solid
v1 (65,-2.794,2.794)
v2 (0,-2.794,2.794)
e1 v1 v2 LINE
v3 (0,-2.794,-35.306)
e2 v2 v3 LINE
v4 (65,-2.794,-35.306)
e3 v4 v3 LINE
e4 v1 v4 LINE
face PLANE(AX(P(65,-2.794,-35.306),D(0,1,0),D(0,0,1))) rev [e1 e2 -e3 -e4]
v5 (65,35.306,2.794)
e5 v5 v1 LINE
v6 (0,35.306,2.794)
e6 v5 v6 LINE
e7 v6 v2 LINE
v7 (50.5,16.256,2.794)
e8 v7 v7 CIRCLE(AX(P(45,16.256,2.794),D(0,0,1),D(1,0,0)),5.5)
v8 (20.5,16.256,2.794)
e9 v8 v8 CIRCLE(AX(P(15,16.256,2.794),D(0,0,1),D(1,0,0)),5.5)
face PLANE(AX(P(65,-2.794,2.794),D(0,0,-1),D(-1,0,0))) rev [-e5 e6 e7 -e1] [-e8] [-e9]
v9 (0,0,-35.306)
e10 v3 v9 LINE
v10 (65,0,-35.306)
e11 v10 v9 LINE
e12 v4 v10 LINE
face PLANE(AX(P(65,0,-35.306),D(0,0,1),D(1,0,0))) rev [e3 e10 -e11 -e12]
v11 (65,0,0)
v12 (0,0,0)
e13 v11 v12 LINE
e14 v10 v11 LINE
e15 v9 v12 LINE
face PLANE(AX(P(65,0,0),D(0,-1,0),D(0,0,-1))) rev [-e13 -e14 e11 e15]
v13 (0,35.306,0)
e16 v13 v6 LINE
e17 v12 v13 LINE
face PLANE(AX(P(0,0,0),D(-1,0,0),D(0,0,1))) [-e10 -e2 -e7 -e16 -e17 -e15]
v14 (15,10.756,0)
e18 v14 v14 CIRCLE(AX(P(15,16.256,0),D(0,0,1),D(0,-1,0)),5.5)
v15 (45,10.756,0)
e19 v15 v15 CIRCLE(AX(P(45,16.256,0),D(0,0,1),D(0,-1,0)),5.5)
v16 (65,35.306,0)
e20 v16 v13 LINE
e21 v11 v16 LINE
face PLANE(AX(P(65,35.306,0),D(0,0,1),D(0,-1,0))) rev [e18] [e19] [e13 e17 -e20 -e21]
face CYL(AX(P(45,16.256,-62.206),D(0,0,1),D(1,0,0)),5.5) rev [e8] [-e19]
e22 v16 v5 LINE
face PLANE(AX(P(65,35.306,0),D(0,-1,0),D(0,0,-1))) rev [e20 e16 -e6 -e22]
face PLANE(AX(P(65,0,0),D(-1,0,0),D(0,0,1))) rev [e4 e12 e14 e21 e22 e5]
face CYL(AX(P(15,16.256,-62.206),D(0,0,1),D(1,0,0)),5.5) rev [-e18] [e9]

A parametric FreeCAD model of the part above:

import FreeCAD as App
import Part
import Sketcher
from FreeCAD import Vector
Q = App.Units.Quantity


def add_polygon(sketch, points):
    """Adds a closed chain of lines whose ends are joined by coincident constraints."""
    first, n = sketch.GeometryCount, len(points)
    for a, b in zip(points, points[1:] + points[:1]):
        sketch.addGeometry(Part.LineSegment(App.Vector(*a, 0), App.Vector(*b, 0)), False)
    for i in range(n):
        sketch.addConstraint(Sketcher.Constraint("Coincident", first + i, 2, first + (i + 1) % n, 1))

doc = App.newDocument("Part")
body = doc.addObject("PartDesign::Body", "Body")

sketch1 = body.newObject("Sketcher::SketchObject", "Sketch")
sketch1.AttachmentSupport = (doc.getObject("YZ_Plane"), [""])
sketch1.MapMode = "FlatFace"
add_polygon(sketch1, [(0, 0), (35.3, 0), (35.3, 2.8), (-2.8, 2.8), (-2.8, -35.3), (0, -35.3)])
sketch1.addConstraint([
    Sketcher.Constraint("Horizontal", 0),
    Sketcher.Constraint("Vertical", 1),
    Sketcher.Constraint("Horizontal", 2),
    Sketcher.Constraint("Vertical", 3),
    Sketcher.Constraint("Horizontal", 4),
    Sketcher.Constraint("Vertical", 5),
    Sketcher.Constraint("Coincident", 5, 2, -1, 1),
    Sketcher.Constraint("Equal", 4, 1),
    Sketcher.Constraint("Equal", 2, 3),
    Sketcher.Constraint("DistanceX", 2, 2, 2, 1, Q("1.5 in")),
    Sketcher.Constraint("DistanceX", 0, 1, 0, 2, Q("1.39 in")),
])
pad1 = body.newObject("PartDesign::Pad", "Pad")
pad1.Profile = sketch1
pad1.Length = 65

sketch2 = body.newObject("Sketcher::SketchObject", "Sketch001")
sketch2.AttachmentSupport = (doc.getObject("XY_Plane"), [""])
sketch2.MapMode = "FlatFace"
sketch2.AttachmentOffset = App.Placement(Vector(0, 0, 0.11 * 25.4), App.Rotation())
sketch2.addGeometry([
    Part.Circle(Vector(15, 16, 0), Vector(0, 0, 1), 6),
    Part.Circle(Vector(45, 16, 0), Vector(0, 0, 1), 6),
], False)
sketch2.addConstraint([
    Sketcher.Constraint("Equal", 0, 1),
    Sketcher.Constraint("Horizontal", 0, 3, 1, 3),
    Sketcher.Constraint("Diameter", 0, Q("11 mm")),
    Sketcher.Constraint("DistanceY", -1, 1, 0, 3, Q("0.64 in")),
    Sketcher.Constraint("DistanceX", -1, 1, 0, 3, Q("15 mm")),
    Sketcher.Constraint("DistanceX", -1, 1, 1, 3, Q("45 mm")),
])
pocket1 = body.newObject("PartDesign::Pocket", "Pocket")
pocket1.Profile = sketch2
pocket1.Length = 65

doc.recompute()
